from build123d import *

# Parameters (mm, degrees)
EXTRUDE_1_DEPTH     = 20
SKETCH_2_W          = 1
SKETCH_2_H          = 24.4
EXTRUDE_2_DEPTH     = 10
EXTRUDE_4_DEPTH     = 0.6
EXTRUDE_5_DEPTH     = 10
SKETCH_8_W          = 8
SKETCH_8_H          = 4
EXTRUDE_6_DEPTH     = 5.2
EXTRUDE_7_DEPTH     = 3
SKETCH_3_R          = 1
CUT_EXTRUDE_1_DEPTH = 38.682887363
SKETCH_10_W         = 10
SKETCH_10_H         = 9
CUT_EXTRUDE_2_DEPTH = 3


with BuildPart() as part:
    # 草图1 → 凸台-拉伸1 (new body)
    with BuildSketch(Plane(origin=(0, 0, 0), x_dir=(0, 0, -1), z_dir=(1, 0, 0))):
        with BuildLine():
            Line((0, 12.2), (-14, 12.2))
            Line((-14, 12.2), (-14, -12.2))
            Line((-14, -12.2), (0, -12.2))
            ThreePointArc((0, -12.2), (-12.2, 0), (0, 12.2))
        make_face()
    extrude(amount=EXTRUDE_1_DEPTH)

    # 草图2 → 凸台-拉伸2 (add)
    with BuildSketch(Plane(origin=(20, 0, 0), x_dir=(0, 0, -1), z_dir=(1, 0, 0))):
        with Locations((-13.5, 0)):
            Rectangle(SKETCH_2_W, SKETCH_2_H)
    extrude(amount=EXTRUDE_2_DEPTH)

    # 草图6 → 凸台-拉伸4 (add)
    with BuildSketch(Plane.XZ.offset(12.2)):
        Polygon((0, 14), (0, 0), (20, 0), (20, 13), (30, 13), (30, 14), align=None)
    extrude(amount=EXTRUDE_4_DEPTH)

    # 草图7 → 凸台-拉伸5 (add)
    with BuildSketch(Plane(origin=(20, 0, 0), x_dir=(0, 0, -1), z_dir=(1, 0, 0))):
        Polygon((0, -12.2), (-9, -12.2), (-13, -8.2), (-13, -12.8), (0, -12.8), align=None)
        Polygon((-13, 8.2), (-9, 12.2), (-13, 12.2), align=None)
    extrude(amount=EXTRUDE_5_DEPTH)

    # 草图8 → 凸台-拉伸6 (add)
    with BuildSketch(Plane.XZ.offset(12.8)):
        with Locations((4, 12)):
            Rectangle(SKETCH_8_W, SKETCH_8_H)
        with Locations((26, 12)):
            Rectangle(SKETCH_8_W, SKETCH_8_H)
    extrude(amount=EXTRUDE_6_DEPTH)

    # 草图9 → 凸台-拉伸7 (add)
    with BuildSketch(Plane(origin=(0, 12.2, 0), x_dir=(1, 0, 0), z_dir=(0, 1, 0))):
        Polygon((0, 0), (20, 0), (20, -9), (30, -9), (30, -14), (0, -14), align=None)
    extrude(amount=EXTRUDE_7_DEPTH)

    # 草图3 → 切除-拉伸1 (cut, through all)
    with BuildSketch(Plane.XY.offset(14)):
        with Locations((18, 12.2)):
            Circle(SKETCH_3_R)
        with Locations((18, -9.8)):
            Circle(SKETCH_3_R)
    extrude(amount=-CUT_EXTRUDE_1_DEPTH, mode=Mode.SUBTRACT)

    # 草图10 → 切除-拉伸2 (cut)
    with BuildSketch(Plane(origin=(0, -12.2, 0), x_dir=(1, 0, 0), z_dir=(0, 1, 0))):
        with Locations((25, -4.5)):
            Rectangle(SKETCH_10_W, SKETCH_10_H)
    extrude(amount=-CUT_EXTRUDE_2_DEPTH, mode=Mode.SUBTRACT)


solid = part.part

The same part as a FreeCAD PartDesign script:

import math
import FreeCAD as App
import Part
import Sketcher

V = App.Vector

doc = App.newDocument("Part")
body = doc.addObject("PartDesign::Body", "Body")

# Sketch on YZ plane
sketch1 = doc.addObject("Sketcher::SketchObject", "Sketch")
body.addObject(sketch1)
sketch1.AttachmentSupport = (doc.YZ_Plane, [""])
sketch1.MapMode = "FlatFace"
sketch1.addGeometry([
    Part.LineSegment(V(12, 0, 0), V(12, 14, 0)),
    Part.LineSegment(V(12, 14, 0), V(-12, 14, 0)),
    Part.LineSegment(V(-12, 14, 0), V(-12, 0, 0)),
    Part.ArcOfCircle(Part.Circle(V(0, 0, 0), V(0, 0, 1), 12), math.radians(0), math.radians(180)),
], False)
sketch1.addConstraint([
    Sketcher.Constraint("Coincident", 0, 2, 1, 1),
    Sketcher.Constraint("Coincident", 1, 2, 2, 1),
    Sketcher.Constraint("Tangent", 2, 2, 3, 2),
    Sketcher.Constraint("Tangent", 3, 1, 0, 1),
    Sketcher.Constraint("Vertical", 0),
    Sketcher.Constraint("Horizontal", 1),
    Sketcher.Constraint("Vertical", 2),
    Sketcher.Constraint("Coincident", 3, 3, -1, 1),
    Sketcher.Constraint("Radius", 3, 12.2),
    Sketcher.Constraint("DistanceY", 0, 1, 0, 2, 14.0),
])
pad1 = doc.addObject("PartDesign::Pad", "Pad")
body.addObject(pad1)
pad1.Profile = sketch1
pad1.Length = 20

# Sketch on YZ plane
sketch2 = doc.addObject("Sketcher::SketchObject", "Sketch001")
body.addObject(sketch2)
sketch2.AttachmentSupport = (doc.YZ_Plane, [""])
sketch2.MapMode = "FlatFace"
sketch2.AttachmentOffset = App.Placement(V(0, 0, 20), App.Rotation())
sketch2.addGeometry([
    Part.LineSegment(V(12.2, 14, 0), V(-12.2, 14, 0)),
    Part.LineSegment(V(-12.2, 14, 0), V(-12.2, 13, 0)),
    Part.LineSegment(V(-12.2, 13, 0), V(12.2, 13, 0)),
    Part.LineSegment(V(12.2, 13, 0), V(12.2, 14, 0)),
], False)
sketch2.addConstraint([
    Sketcher.Constraint("Coincident", 0, 2, 1, 1),
    Sketcher.Constraint("Coincident", 1, 2, 2, 1),
    Sketcher.Constraint("Coincident", 2, 2, 3, 1),
    Sketcher.Constraint("Coincident", 3, 2, 0, 1),
    Sketcher.Constraint("Horizontal", 0),
    Sketcher.Constraint("Vertical", 1),
    Sketcher.Constraint("Horizontal", 2),
    Sketcher.Constraint("Vertical", 3),
    Sketcher.Constraint("DistanceY", 1, 2, 1, 1, 1.0),
    Sketcher.Constraint("DistanceX", 0, 2, 0, 1, 24.4),
    Sketcher.Constraint("DistanceY", -1, 1, 0, 2, 14.0),
    Sketcher.Constraint("DistanceX", 0, 2, -1, 1, 12.2),
])
pad2 = doc.addObject("PartDesign::Pad", "Pad001")
body.addObject(pad2)
pad2.Profile = sketch2
pad2.Length = 10

# Sketch on XZ plane
sketch3 = doc.addObject("Sketcher::SketchObject", "Sketch002")
body.addObject(sketch3)
sketch3.AttachmentSupport = (doc.XZ_Plane, [""])
sketch3.MapMode = "FlatFace"
sketch3.AttachmentOffset = App.Placement(V(0, 0, 12.2), App.Rotation())
sketch3.addGeometry([
    Part.LineSegment(V(0, 14, 0), V(0, 0, 0)),  # 0
    Part.LineSegment(V(0, 0, 0), V(20, 0, 0)),  # 1
    Part.LineSegment(V(20, 0, 0), V(20, 13, 0)),  # 2
    Part.LineSegment(V(20, 13, 0), V(30, 13, 0)),  # 3
    Part.LineSegment(V(30, 13, 0), V(30, 14, 0)),  # 4
    Part.LineSegment(V(30, 14, 0), V(0, 14, 0)),  # 5
], False)
sketch3.addConstraint([
    Sketcher.Constraint("Coincident", 0, 2, 1, 1),
    Sketcher.Constraint("Coincident", 1, 2, 2, 1),
    Sketcher.Constraint("Coincident", 2, 2, 3, 1),
    Sketcher.Constraint("Coincident", 3, 2, 4, 1),
    Sketcher.Constraint("Coincident", 4, 2, 5, 1),
    Sketcher.Constraint("Coincident", 5, 2, 0, 1),
    Sketcher.Constraint("Vertical", 0),
    Sketcher.Constraint("Horizontal", 1),
    Sketcher.Constraint("Vertical", 2),
    Sketcher.Constraint("Horizontal", 3),
    Sketcher.Constraint("Vertical", 4),
    Sketcher.Constraint("Horizontal", 5),
    Sketcher.Constraint("Coincident", 0, 2, -1, 1),
    Sketcher.Constraint("DistanceX", 1, 1, 1, 2, 20.0),
    Sketcher.Constraint("DistanceX", 3, 1, 3, 2, 10.0),
    Sketcher.Constraint("DistanceY", 0, 2, 0, 1, 14.0),
    Sketcher.Constraint("DistanceY", 2, 1, 2, 2, 13.0),
])
pad3 = doc.addObject("PartDesign::Pad", "Pad002")
body.addObject(pad3)
pad3.Profile = sketch3
pad3.Length = 0.6

# Sketch on YZ plane
sketch4 = doc.addObject("Sketcher::SketchObject", "Sketch003")
body.addObject(sketch4)
sketch4.AttachmentSupport = (doc.YZ_Plane, [""])
sketch4.MapMode = "FlatFace"
sketch4.AttachmentOffset = App.Placement(V(0, 0, 20), App.Rotation())
sketch4.addGeometry([
    Part.LineSegment(V(-12.2, 0, 0), V(-12.2, 9, 0)),  # 0
    Part.LineSegment(V(-12.2, 9, 0), V(-8.2, 13, 0)),  # 1
    Part.LineSegment(V(-8.2, 13, 0), V(-12.8, 13, 0)),  # 2
    Part.LineSegment(V(-12.8, 13, 0), V(-12.8, 0, 0)),  # 3
    Part.LineSegment(V(-12.8, 0, 0), V(-12.2, 0, 0)),  # 4
    Part.LineSegment(V(8.2, 13, 0), V(12.2, 9, 0)),  # 5
    Part.LineSegment(V(12.2, 9, 0), V(12.2, 13, 0)),  # 6
    Part.LineSegment(V(12.2, 13, 0), V(8.2, 13, 0)),  # 7
], False)
sketch4.addConstraint([
    Sketcher.Constraint("Coincident", 0, 2, 1, 1),
    Sketcher.Constraint("Coincident", 1, 2, 2, 1),
    Sketcher.Constraint("Coincident", 2, 2, 3, 1),
    Sketcher.Constraint("Coincident", 3, 2, 4, 1),
    Sketcher.Constraint("Coincident", 4, 2, 0, 1),
    Sketcher.Constraint("Coincident", 5, 2, 6, 1),
    Sketcher.Constraint("Coincident", 6, 2, 7, 1),
    Sketcher.Constraint("Coincident", 7, 2, 5, 1),
    Sketcher.Constraint("Vertical", 0),
    Sketcher.Constraint("Horizontal", 2),
    Sketcher.Constraint("Vertical", 3),
    Sketcher.Constraint("Horizontal", 4),
    Sketcher.Constraint("Vertical", 6),
    Sketcher.Constraint("Horizontal", 7),
    Sketcher.Constraint("Symmetric", 0, 2, 5, 2, -2),
    Sketcher.Constraint("Symmetric", 1, 2, 7, 2, -2),
    Sketcher.Constraint("PointOnObject", 3, 2, -1),
    Sketcher.Constraint("Perpendicular", 1, 5),
    Sketcher.Constraint("DistanceX", 7, 2, 7, 1, 4.0),
    Sketcher.Constraint("DistanceY", 0, 1, 0, 2, 9.0),
    Sketcher.Constraint("DistanceX", 2, 2, 2, 1, 4.6),
    Sketcher.Constraint("DistanceX", 2, 2, 5, 2, 25.0),
])
pad4 = doc.addObject("PartDesign::Pad", "Pad003")
body.addObject(pad4)
pad4.Profile = sketch4
pad4.Length = 10

# Sketch on XZ plane
sketch5 = doc.addObject("Sketcher::SketchObject", "Sketch004")
body.addObject(sketch5)
sketch5.AttachmentSupport = (doc.XZ_Plane, [""])
sketch5.MapMode = "FlatFace"
sketch5.AttachmentOffset = App.Placement(V(0, 0, 12.8), App.Rotation())
sketch5.addGeometry([
    Part.LineSegment(V(0, 14, 0), V(0, 10, 0)),  # 0
    Part.LineSegment(V(0, 10, 0), V(8, 10, 0)),  # 1
    Part.LineSegment(V(8, 10, 0), V(8, 14, 0)),  # 2
    Part.LineSegment(V(8, 14, 0), V(0, 14, 0)),  # 3
    Part.LineSegment(V(22, 14, 0), V(22, 10, 0)),  # 4
    Part.LineSegment(V(22, 10, 0), V(30, 10, 0)),  # 5
    Part.LineSegment(V(30, 10, 0), V(30, 14, 0)),  # 6
    Part.LineSegment(V(30, 14, 0), V(22, 14, 0)),  # 7
], False)
sketch5.addConstraint([
    Sketcher.Constraint("Coincident", 0, 2, 1, 1),
    Sketcher.Constraint("Coincident", 1, 2, 2, 1),
    Sketcher.Constraint("Coincident", 2, 2, 3, 1),
    Sketcher.Constraint("Coincident", 3, 2, 0, 1),
    Sketcher.Constraint("Coincident", 4, 2, 5, 1),
    Sketcher.Constraint("Coincident", 5, 2, 6, 1),
    Sketcher.Constraint("Coincident", 6, 2, 7, 1),
    Sketcher.Constraint("Coincident", 7, 2, 4, 1),
    Sketcher.Constraint("Vertical", 0),
    Sketcher.Constraint("Horizontal", 1),
    Sketcher.Constraint("Vertical", 2),
    Sketcher.Constraint("Horizontal", 3),
    Sketcher.Constraint("Vertical", 4),
    Sketcher.Constraint("Horizontal", 5),
    Sketcher.Constraint("Vertical", 6),
    Sketcher.Constraint("Horizontal", 7),
    Sketcher.Constraint("PointOnObject", 0, 2, -2),
    Sketcher.Constraint("Horizontal", 1, 2, 4, 2),
    Sketcher.Constraint("Horizontal", 3, 2, 6, 2),
    Sketcher.Constraint("Equal", 3, 5),
    Sketcher.Constraint("DistanceX", 1, 1, 1, 2, 8.0),
    Sketcher.Constraint("DistanceY", 0, 2, 0, 1, 4.0),
    Sketcher.Constraint("DistanceY", -1, 1, 0, 2, 10.0),
    Sketcher.Constraint("DistanceX", -1, 1, 4, 2, 22.0),
])
pad5 = doc.addObject("PartDesign::Pad", "Pad004")
body.addObject(pad5)
pad5.Profile = sketch5
pad5.Length = 5.2

# Sketch on XZ plane
sketch6 = doc.addObject("Sketcher::SketchObject", "Sketch005")
body.addObject(sketch6)
sketch6.AttachmentSupport = (doc.XZ_Plane, [""])
sketch6.MapMode = "FlatFace"
sketch6.AttachmentOffset = App.Placement(V(0, 0, -12.2), App.Rotation())
sketch6.addGeometry([
    Part.LineSegment(V(20, 0, 0), V(0, 0, 0)),  # 0
    Part.LineSegment(V(0, 0, 0), V(0, 14, 0)),  # 1
    Part.LineSegment(V(0, 14, 0), V(30, 14, 0)),  # 2
    Part.LineSegment(V(30, 14, 0), V(30, 9, 0)),  # 3
    Part.LineSegment(V(30, 9, 0), V(20, 9, 0)),  # 4
    Part.LineSegment(V(20, 9, 0), V(20, 0, 0)),  # 5
], False)
sketch6.addConstraint([
    Sketcher.Constraint("Coincident", 0, 2, 1, 1),
    Sketcher.Constraint("Coincident", 1, 2, 2, 1),
    Sketcher.Constraint("Coincident", 2, 2, 3, 1),
    Sketcher.Constraint("Coincident", 3, 2, 4, 1),
    Sketcher.Constraint("Coincident", 4, 2, 5, 1),
    Sketcher.Constraint("Coincident", 5, 2, 0, 1),
    Sketcher.Constraint("Horizontal", 0),
    Sketcher.Constraint("Vertical", 1),
    Sketcher.Constraint("Horizontal", 2),
    Sketcher.Constraint("Vertical", 3),
    Sketcher.Constraint("Horizontal", 4),
    Sketcher.Constraint("Vertical", 5),
    Sketcher.Constraint("Coincident", 0, 2, -1, 1),
    Sketcher.Constraint("DistanceX", 0, 2, 0, 1, 20.0),
    Sketcher.Constraint("DistanceX", 2, 1, 2, 2, 30.0),
    Sketcher.Constraint("DistanceY", 1, 1, 1, 2, 14.0),
    Sketcher.Constraint("DistanceY", 3, 2, 3, 1, 5.0),
])
pad6 = doc.addObject("PartDesign::Pad", "Pad005")
body.addObject(pad6)
pad6.Profile = sketch6
pad6.Length = 3
pad6.Reversed = True

# Sketch on XY plane
sketch7 = doc.addObject("Sketcher::SketchObject", "Sketch006")
body.addObject(sketch7)
sketch7.AttachmentSupport = (doc.XY_Plane, [""])
sketch7.MapMode = "FlatFace"
sketch7.AttachmentOffset = App.Placement(V(0, 0, 14), App.Rotation())
sketch7.addGeometry([
    Part.Circle(V(18, 12.2, 0), V(0, 0, 1), 1),
    Part.Circle(V(18, -9.8, 0), V(0, 0, 1), 1),
], False)
sketch7.addConstraint([
    Sketcher.Constraint("Equal", 0, 1),
    Sketcher.Constraint("Vertical", 0, 3, 1, 3),
    Sketcher.Constraint("Diameter", 0, 2.0),
    Sketcher.Constraint("DistanceX", -1, 1, 0, 3, 18.0),
    Sketcher.Constraint("DistanceY", 1, 3, 0, 3, 22.0),
    Sketcher.Constraint("DistanceY", -1, 1, 0, 3, 12.2),
])
pocket1 = doc.addObject("PartDesign::Pocket", "Pocket")
body.addObject(pocket1)
pocket1.Profile = sketch7
pocket1.Type = "ThroughAll"

# Sketch on XZ plane
sketch8 = doc.addObject("Sketcher::SketchObject", "Sketch007")
body.addObject(sketch8)
sketch8.AttachmentSupport = (doc.XZ_Plane, [""])
sketch8.MapMode = "FlatFace"
sketch8.AttachmentOffset = App.Placement(V(0, 0, 12.2), App.Rotation())
sketch8.addGeometry([
    Part.LineSegment(V(20, 0, 0), V(20, 9, 0)),
    Part.LineSegment(V(20, 9, 0), V(30, 9, 0)),
    Part.LineSegment(V(30, 9, 0), V(30, 0, 0)),
    Part.LineSegment(V(30, 0, 0), V(20, 0, 0)),
], False)
sketch8.addConstraint([
    Sketcher.Constraint("Coincident", 0, 2, 1, 1),
    Sketcher.Constraint("Coincident", 1, 2, 2, 1),
    Sketcher.Constraint("Coincident", 2, 2, 3, 1),
    Sketcher.Constraint("Coincident", 3, 2, 0, 1),
    Sketcher.Constraint("Vertical", 0),
    Sketcher.Constraint("Horizontal", 1),
    Sketcher.Constraint("Vertical", 2),
    Sketcher.Constraint("Horizontal", 3),
    Sketcher.Constraint("PointOnObject", 2, 2, -1),
    Sketcher.Constraint("DistanceX", 1, 1, 1, 2, 10.0),
    Sketcher.Constraint("DistanceY", 0, 1, 0, 2, 9.0),
    Sketcher.Constraint("DistanceX", -1, 1, 0, 2, 20.0),
])
pocket2 = doc.addObject("PartDesign::Pocket", "Pocket001")
body.addObject(pocket2)
pocket2.Profile = sketch8
pocket2.Length = 3
pocket2.Reversed = True

doc.recompute()
